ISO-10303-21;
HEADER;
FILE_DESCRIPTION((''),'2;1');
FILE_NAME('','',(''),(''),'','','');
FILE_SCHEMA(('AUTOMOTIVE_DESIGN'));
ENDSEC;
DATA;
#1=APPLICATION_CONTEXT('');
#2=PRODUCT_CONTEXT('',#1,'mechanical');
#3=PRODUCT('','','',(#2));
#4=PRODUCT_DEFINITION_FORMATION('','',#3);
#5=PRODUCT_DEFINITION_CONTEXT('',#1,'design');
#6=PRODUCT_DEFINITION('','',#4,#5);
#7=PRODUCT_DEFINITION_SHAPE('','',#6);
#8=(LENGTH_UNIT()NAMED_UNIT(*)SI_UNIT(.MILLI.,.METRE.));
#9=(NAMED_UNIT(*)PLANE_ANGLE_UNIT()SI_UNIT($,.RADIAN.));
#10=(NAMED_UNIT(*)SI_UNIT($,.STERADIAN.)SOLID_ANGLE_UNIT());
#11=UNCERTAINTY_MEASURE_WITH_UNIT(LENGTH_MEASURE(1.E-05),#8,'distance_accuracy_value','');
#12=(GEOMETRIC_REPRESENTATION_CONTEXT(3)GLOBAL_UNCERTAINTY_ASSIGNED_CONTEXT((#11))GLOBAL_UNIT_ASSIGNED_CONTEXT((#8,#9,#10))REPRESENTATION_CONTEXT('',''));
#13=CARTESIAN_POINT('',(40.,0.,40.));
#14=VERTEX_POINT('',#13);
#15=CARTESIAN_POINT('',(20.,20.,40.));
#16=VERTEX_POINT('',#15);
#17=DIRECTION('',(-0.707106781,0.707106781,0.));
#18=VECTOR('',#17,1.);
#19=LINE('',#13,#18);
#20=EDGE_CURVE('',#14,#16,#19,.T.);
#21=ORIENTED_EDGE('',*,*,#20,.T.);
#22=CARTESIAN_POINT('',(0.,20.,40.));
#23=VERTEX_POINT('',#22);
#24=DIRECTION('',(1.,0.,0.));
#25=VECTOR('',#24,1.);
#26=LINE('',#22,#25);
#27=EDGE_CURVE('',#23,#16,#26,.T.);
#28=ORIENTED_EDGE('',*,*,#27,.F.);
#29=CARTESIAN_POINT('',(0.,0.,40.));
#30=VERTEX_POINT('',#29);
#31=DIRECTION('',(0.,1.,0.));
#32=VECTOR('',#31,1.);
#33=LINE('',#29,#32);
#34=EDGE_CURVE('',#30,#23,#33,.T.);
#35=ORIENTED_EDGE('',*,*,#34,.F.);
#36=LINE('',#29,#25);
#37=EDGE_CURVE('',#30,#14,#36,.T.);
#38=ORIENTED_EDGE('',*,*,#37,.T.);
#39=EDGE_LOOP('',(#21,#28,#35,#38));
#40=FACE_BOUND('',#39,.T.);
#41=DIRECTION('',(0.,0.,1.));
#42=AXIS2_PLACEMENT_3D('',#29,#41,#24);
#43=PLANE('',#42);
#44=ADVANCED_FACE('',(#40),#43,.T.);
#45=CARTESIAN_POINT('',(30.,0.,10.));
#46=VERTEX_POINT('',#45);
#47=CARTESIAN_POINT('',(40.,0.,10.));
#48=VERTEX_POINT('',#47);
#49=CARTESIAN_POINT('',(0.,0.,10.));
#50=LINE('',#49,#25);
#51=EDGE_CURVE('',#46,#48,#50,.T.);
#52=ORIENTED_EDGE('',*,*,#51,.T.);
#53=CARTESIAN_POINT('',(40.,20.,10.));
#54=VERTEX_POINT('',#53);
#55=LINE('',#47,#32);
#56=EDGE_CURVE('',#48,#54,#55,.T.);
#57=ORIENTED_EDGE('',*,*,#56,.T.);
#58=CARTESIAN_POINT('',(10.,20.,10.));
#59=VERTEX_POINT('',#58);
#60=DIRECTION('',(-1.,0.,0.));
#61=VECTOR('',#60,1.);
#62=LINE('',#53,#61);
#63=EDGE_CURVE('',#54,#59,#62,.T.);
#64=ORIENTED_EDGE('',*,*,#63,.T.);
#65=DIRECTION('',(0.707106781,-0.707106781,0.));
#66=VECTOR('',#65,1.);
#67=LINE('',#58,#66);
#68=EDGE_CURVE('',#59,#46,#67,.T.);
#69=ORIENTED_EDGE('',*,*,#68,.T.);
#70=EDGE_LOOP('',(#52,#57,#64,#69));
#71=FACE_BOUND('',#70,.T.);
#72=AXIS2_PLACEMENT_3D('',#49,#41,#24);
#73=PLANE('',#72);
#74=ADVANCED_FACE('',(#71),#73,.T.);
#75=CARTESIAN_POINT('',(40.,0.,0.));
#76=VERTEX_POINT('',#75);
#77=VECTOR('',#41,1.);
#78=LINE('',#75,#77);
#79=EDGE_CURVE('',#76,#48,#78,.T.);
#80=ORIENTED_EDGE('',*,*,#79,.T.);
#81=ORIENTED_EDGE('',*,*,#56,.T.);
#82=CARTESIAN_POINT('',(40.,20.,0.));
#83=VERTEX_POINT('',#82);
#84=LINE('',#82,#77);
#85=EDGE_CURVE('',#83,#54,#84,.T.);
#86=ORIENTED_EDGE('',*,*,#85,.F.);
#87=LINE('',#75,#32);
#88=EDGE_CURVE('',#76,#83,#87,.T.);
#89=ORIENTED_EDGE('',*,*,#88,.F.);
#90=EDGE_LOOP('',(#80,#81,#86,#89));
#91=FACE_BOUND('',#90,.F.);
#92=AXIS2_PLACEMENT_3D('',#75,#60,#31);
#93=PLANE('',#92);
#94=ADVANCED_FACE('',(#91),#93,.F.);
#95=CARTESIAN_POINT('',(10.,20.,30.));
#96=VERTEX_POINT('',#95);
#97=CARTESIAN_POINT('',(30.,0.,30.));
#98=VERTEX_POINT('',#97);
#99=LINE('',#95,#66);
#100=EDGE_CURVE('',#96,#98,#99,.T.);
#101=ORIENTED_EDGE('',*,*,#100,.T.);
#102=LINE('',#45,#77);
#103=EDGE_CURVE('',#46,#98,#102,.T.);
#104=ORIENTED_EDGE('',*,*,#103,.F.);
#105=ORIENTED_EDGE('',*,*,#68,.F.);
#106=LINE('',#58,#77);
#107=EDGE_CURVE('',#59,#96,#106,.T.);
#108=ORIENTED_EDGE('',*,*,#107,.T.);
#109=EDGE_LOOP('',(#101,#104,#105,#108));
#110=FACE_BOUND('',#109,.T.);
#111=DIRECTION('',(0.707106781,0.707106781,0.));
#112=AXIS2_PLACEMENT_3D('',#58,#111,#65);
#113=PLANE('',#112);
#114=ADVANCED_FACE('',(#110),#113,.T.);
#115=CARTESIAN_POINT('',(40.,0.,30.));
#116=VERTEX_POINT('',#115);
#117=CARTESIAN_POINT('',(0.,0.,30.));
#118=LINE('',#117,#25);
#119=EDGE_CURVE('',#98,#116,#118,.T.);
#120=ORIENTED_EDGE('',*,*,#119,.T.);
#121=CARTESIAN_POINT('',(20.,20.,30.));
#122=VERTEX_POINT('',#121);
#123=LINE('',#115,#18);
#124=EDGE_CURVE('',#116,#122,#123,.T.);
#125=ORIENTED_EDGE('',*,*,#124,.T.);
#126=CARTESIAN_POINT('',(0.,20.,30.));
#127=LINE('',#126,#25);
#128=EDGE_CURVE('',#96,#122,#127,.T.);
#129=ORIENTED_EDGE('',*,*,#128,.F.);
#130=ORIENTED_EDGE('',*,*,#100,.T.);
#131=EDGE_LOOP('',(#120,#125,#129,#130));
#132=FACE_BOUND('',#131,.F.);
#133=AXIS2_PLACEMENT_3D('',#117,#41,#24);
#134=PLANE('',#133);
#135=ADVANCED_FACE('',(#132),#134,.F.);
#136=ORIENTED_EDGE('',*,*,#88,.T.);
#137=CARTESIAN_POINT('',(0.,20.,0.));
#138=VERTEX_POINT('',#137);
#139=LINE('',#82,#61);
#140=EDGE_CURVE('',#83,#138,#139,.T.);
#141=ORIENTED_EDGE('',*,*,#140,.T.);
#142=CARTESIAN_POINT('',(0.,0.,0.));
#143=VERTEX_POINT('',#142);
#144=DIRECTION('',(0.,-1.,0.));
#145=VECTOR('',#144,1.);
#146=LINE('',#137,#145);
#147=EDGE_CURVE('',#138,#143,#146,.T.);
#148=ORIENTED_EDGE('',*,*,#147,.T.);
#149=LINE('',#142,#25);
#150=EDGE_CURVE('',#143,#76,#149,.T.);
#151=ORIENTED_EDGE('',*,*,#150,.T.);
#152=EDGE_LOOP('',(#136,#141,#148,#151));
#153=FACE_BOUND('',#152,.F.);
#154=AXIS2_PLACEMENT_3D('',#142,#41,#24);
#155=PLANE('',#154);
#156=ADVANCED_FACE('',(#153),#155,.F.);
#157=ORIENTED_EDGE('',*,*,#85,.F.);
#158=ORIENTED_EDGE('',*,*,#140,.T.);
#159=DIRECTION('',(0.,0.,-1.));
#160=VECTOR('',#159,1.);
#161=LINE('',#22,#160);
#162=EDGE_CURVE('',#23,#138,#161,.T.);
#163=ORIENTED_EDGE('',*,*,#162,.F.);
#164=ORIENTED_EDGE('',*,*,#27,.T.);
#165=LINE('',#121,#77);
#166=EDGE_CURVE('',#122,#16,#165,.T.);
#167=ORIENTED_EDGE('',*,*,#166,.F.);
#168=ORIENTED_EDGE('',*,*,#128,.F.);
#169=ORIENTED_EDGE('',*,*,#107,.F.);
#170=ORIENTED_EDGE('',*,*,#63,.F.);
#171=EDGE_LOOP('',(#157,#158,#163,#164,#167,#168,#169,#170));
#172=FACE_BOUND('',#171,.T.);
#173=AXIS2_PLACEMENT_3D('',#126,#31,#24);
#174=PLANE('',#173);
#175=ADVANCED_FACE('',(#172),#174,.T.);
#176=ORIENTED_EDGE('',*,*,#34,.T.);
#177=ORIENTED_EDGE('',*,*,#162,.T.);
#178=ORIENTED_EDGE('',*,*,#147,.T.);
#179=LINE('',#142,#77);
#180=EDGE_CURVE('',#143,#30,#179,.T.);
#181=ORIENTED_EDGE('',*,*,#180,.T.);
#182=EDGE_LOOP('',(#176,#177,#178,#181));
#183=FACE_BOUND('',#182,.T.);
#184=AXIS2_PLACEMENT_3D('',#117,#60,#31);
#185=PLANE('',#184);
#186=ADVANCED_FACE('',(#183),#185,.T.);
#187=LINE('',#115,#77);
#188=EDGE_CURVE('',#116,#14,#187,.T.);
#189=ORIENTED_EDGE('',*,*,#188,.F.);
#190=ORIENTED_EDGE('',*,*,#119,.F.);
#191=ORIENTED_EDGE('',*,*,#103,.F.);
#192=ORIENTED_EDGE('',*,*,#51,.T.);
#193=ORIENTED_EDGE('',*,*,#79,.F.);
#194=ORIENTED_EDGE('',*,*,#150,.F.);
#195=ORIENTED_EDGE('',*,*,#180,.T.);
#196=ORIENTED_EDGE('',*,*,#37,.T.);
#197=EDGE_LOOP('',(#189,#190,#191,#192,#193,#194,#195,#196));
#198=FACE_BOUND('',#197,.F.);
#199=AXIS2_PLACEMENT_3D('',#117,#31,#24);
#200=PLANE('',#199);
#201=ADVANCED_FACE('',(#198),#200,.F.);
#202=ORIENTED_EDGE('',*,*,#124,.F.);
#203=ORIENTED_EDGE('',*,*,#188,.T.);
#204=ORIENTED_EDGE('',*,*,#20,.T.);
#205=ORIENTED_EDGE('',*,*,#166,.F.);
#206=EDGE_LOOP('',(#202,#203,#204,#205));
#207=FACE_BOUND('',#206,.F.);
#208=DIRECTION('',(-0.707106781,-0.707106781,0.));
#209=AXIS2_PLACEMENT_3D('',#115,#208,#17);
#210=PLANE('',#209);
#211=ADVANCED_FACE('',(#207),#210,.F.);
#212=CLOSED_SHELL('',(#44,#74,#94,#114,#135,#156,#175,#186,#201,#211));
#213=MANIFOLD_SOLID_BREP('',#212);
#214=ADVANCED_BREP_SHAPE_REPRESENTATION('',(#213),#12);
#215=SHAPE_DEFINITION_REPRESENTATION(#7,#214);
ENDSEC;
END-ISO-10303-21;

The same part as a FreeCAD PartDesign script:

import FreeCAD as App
import Part
import Sketcher
from FreeCAD import Vector
Q = App.Units.Quantity

doc = App.newDocument("Part")
body = doc.addObject("PartDesign::Body", "Body")

# Sketch on XY plane
sketch1 = body.newObject("Sketcher::SketchObject", "Sketch")
sketch1.AttachmentSupport = (doc.getObject("XY_Plane"), [""])
sketch1.MapMode = "FlatFace"
sketch1.addGeometry([
    Part.LineSegment(Vector(0, 20, 0), Vector(0, 0, 0)),
    Part.LineSegment(Vector(0, 0, 0), Vector(40, 0, 0)),
    Part.LineSegment(Vector(40, 0, 0), Vector(40, 20, 0)),
    Part.LineSegment(Vector(40, 20, 0), Vector(0, 20, 0)),
], False)
sketch1.addConstraint([
    Sketcher.Constraint("Coincident", 0, 2, 1, 1),
    Sketcher.Constraint("Coincident", 1, 2, 2, 1),
    Sketcher.Constraint("Coincident", 2, 2, 3, 1),
    Sketcher.Constraint("Coincident", 3, 2, 0, 1),
    Sketcher.Constraint("Vertical", 0),
    Sketcher.Constraint("Horizontal", 1),
    Sketcher.Constraint("Vertical", 2),
    Sketcher.Constraint("Horizontal", 3),
    Sketcher.Constraint("Coincident", 0, 2, -1, 1),
    Sketcher.Constraint("DistanceX", 1, 1, 1, 2, Q("40 mm")),
    Sketcher.Constraint("DistanceY", 0, 2, 0, 1, Q("20 mm")),
])
pad1 = body.newObject("PartDesign::Pad", "Pad")
pad1.Profile = sketch1
pad1.Length = 10

# Sketch on XY plane
sketch2 = body.newObject("Sketcher::SketchObject", "Sketch001")
sketch2.AttachmentSupport = (doc.getObject("XY_Plane"), [""])
sketch2.MapMode = "FlatFace"
sketch2.AttachmentOffset = App.Placement(Vector(0, 0, 10), App.Rotation())
sketch2.addGeometry([
    Part.LineSegment(Vector(30, 0, 0), Vector(10, 20, 0)),
    Part.LineSegment(Vector(10, 20, 0), Vector(0, 20, 0)),
    Part.LineSegment(Vector(0, 20, 0), Vector(0, 0, 0)),
    Part.LineSegment(Vector(0, 0, 0), Vector(30, 0, 0)),
], False)
sketch2.addConstraint([
    Sketcher.Constraint("Coincident", 0, 2, 1, 1),
    Sketcher.Constraint("Coincident", 1, 2, 2, 1),
    Sketcher.Constraint("Coincident", 2, 2, 3, 1),
    Sketcher.Constraint("Coincident", 3, 2, 0, 1),
    Sketcher.Constraint("Horizontal", 1),
    Sketcher.Constraint("Vertical", 2),
    Sketcher.Constraint("Horizontal", 3),
    Sketcher.Constraint("Coincident", 2, 2, -1, 1),
    Sketcher.Constraint("DistanceX", 1, 2, 1, 1, Q("10 mm")),
    Sketcher.Constraint("DistanceX", 3, 1, 3, 2, Q("30 mm")),
    Sketcher.Constraint("DistanceY", 2, 2, 2, 1, Q("20 mm")),
])
pad2 = body.newObject("PartDesign::Pad", "Pad001")
pad2.Profile = sketch2
pad2.Length = 20

# Sketch on XY plane
sketch3 = body.newObject("Sketcher::SketchObject", "Sketch002")
sketch3.AttachmentSupport = (doc.getObject("XY_Plane"), [""])
sketch3.MapMode = "FlatFace"
sketch3.AttachmentOffset = App.Placement(Vector(0, 0, 30), App.Rotation())
sketch3.addGeometry([
    Part.LineSegment(Vector(0, 20, 0), Vector(0, 0, 0)),
    Part.LineSegment(Vector(0, 0, 0), Vector(40, 0, 0)),
    Part.LineSegment(Vector(40, 0, 0), Vector(20, 20, 0)),
    Part.LineSegment(Vector(20, 20, 0), Vector(0, 20, 0)),
], False)
sketch3.addConstraint([
    Sketcher.Constraint("Coincident", 0, 2, 1, 1),
    Sketcher.Constraint("Coincident", 1, 2, 2, 1),
    Sketcher.Constraint("Coincident", 2, 2, 3, 1),
    Sketcher.Constraint("Coincident", 3, 2, 0, 1),
    Sketcher.Constraint("Vertical", 0),
    Sketcher.Constraint("Horizontal", 1),
    Sketcher.Constraint("Horizontal", 3),
    Sketcher.Constraint("Coincident", 0, 2, -1, 1),
    Sketcher.Constraint("Equal", 3, 0),
    Sketcher.Constraint("DistanceX", 3, 2, 3, 1, Q("20 mm")),
    Sketcher.Constraint("DistanceX", 2, 2, 1, 2, Q("20 mm")),
])
pad3 = body.newObject("PartDesign::Pad", "Pad002")
pad3.Profile = sketch3
pad3.Length = 10

doc.recompute()
